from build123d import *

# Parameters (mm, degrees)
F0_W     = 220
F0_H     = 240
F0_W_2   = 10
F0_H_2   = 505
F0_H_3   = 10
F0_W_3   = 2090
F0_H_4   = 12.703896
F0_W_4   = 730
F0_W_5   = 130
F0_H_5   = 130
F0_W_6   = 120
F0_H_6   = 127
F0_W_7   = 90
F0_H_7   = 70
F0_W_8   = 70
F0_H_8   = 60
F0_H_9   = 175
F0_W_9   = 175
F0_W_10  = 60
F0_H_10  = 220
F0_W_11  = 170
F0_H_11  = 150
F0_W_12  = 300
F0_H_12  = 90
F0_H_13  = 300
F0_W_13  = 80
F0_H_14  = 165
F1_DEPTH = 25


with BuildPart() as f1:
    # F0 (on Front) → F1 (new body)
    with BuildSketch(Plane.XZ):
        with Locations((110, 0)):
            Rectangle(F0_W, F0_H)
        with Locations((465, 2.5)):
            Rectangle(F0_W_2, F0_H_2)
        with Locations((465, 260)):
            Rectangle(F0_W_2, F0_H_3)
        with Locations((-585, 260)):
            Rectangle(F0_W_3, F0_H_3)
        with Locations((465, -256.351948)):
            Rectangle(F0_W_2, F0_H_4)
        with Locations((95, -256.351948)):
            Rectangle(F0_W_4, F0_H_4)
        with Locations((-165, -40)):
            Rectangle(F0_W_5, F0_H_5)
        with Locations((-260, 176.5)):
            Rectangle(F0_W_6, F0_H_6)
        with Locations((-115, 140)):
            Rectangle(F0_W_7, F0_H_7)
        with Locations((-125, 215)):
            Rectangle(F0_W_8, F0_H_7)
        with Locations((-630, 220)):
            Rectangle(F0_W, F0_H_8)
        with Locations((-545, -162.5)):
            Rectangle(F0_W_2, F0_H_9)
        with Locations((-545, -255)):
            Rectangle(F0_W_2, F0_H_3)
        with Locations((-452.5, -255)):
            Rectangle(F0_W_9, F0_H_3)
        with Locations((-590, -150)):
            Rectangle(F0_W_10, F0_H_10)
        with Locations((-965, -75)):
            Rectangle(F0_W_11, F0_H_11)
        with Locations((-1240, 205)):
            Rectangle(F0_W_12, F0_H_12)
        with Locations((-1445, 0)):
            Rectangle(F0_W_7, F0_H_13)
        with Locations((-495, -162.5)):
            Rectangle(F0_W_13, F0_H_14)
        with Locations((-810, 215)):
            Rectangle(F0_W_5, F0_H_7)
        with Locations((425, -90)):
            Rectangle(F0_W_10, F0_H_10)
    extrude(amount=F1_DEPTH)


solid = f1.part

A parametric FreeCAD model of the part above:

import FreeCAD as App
import Part
import Sketcher

V = App.Vector
Q = App.Units.Quantity

doc = App.newDocument("Part")
params = doc.addObject("Spreadsheet::Sheet", "Params")
for row, (alias, value) in enumerate([
    ("sketch1_width", "220 mm"),
    ("sketch1_width2", "2100 mm"),
    ("sketch1_width3", "2090 mm"),
    ("sketch1_width4", "730 mm"),
    ("sketch1_width5", "130 mm"),
    ("pad1_length", "25 mm"),
], start=1):
    params.set(f"A{row}", alias)
    params.set(f"B{row}", "=" + value)
    params.setAlias(f"B{row}", alias)

body = doc.addObject("PartDesign::Body", "Body")
body.AllowCompound = True

# Sketch on XZ plane
sketch1 = body.newObject("Sketcher::SketchObject", "Sketch")
sketch1.AttachmentSupport = (doc.getObject("XZ_Plane"), [""])
sketch1.MapMode = "FlatFace"
sketch1.addGeometry([
    Part.LineSegment(V(0, 120, 0), V(0, -120, 0)),  # 0
    Part.LineSegment(V(0, -120, 0), V(220, -120, 0)),  # 1
    Part.LineSegment(V(220, -120, 0), V(220, 120, 0)),  # 2
    Part.LineSegment(V(220, 120, 0), V(0, 120, 0)),  # 3
    Part.LineSegment(V(470, 265, 0), V(-1630, 265, 0)),  # 4
    Part.LineSegment(V(-1630, 265, 0), V(-1630, 255, 0)),  # 5
    Part.LineSegment(V(-1630, 255, 0), V(460, 255, 0)),  # 6
    Part.LineSegment(V(460, 255, 0), V(460, -250, 0)),  # 7
    Part.LineSegment(V(460, -250, 0), V(-270, -250, 0)),  # 8
    Part.LineSegment(V(-270, -250, 0), V(-270, -263, 0)),  # 9
    Part.LineSegment(V(-270, -263, 0), V(470, -263, 0)),  # 10
    Part.LineSegment(V(470, -263, 0), V(470, 265, 0)),  # 11
    Part.LineSegment(V(-230, 25, 0), V(-230, -105, 0)),  # 12
    Part.LineSegment(V(-230, -105, 0), V(-100, -105, 0)),  # 13
    Part.LineSegment(V(-100, -105, 0), V(-100, 25, 0)),  # 14
    Part.LineSegment(V(-100, 25, 0), V(-230, 25, 0)),  # 15
    Part.LineSegment(V(-320, 240, 0), V(-320, 113, 0)),  # 16
    Part.LineSegment(V(-320, 113, 0), V(-200, 113, 0)),  # 17
    Part.LineSegment(V(-200, 113, 0), V(-200, 240, 0)),  # 18
    Part.LineSegment(V(-200, 240, 0), V(-320, 240, 0)),  # 19
    Part.LineSegment(V(-160, 175, 0), V(-160, 105, 0)),  # 20
    Part.LineSegment(V(-160, 105, 0), V(-70, 105, 0)),  # 21
    Part.LineSegment(V(-70, 105, 0), V(-70, 175, 0)),  # 22
    Part.LineSegment(V(-70, 175, 0), V(-160, 175, 0)),  # 23
    Part.LineSegment(V(-160, 250, 0), V(-160, 180, 0)),  # 24
    Part.LineSegment(V(-160, 180, 0), V(-90, 180, 0)),  # 25
    Part.LineSegment(V(-90, 180, 0), V(-90, 250, 0)),  # 26
    Part.LineSegment(V(-90, 250, 0), V(-160, 250, 0)),  # 27
    Part.LineSegment(V(-740, 250, 0), V(-740, 190, 0)),  # 28
    Part.LineSegment(V(-740, 190, 0), V(-520, 190, 0)),  # 29
    Part.LineSegment(V(-520, 190, 0), V(-520, 250, 0)),  # 30
    Part.LineSegment(V(-520, 250, 0), V(-740, 250, 0)),  # 31
    Part.LineSegment(V(-550, -75, 0), V(-550, -260, 0)),  # 32
    Part.LineSegment(V(-550, -260, 0), V(-365, -260, 0)),  # 33
    Part.LineSegment(V(-365, -260, 0), V(-365, -250, 0)),  # 34
    Part.LineSegment(V(-365, -250, 0), V(-540, -250, 0)),  # 35
    Part.LineSegment(V(-540, -250, 0), V(-540, -75, 0)),  # 36
    Part.LineSegment(V(-540, -75, 0), V(-550, -75, 0)),  # 37
    Part.LineSegment(V(-620, -40, 0), V(-620, -260, 0)),  # 38
    Part.LineSegment(V(-620, -260, 0), V(-560, -260, 0)),  # 39
    Part.LineSegment(V(-560, -260, 0), V(-560, -40, 0)),  # 40
    Part.LineSegment(V(-560, -40, 0), V(-620, -40, 0)),  # 41
    Part.LineSegment(V(-1050, 0, 0), V(-1050, -150, 0)),  # 42
    Part.LineSegment(V(-1050, -150, 0), V(-880, -150, 0)),  # 43
    Part.LineSegment(V(-880, -150, 0), V(-880, 0, 0)),  # 44
    Part.LineSegment(V(-880, 0, 0), V(-1050, 0, 0)),  # 45
    Part.LineSegment(V(-1390, 250, 0), V(-1390, 160, 0)),  # 46
    Part.LineSegment(V(-1390, 160, 0), V(-1090, 160, 0)),  # 47
    Part.LineSegment(V(-1090, 160, 0), V(-1090, 250, 0)),  # 48
    Part.LineSegment(V(-1090, 250, 0), V(-1390, 250, 0)),  # 49
    Part.LineSegment(V(-1490, 150, 0), V(-1490, -150, 0)),  # 50
    Part.LineSegment(V(-1490, -150, 0), V(-1400, -150, 0)),  # 51
    Part.LineSegment(V(-1400, -150, 0), V(-1400, 150, 0)),  # 52
    Part.LineSegment(V(-1400, 150, 0), V(-1490, 150, 0)),  # 53
    Part.LineSegment(V(-535, -80, 0), V(-535, -245, 0)),  # 54
    Part.LineSegment(V(-535, -245, 0), V(-455, -245, 0)),  # 55
    Part.LineSegment(V(-455, -245, 0), V(-455, -80, 0)),  # 56
    Part.LineSegment(V(-455, -80, 0), V(-535, -80, 0)),  # 57
    Part.LineSegment(V(-875, 250, 0), V(-875, 180, 0)),  # 58
    Part.LineSegment(V(-875, 180, 0), V(-745, 180, 0)),  # 59
    Part.LineSegment(V(-745, 180, 0), V(-745, 250, 0)),  # 60
    Part.LineSegment(V(-745, 250, 0), V(-875, 250, 0)),  # 61
    Part.LineSegment(V(395, 20, 0), V(395, -200, 0)),  # 62
    Part.LineSegment(V(395, -200, 0), V(455, -200, 0)),  # 63
    Part.LineSegment(V(455, -200, 0), V(455, 20, 0)),  # 64
    Part.LineSegment(V(455, 20, 0), V(395, 20, 0)),  # 65
], False)
sketch1.addConstraint([
    Sketcher.Constraint("Coincident", 0, 2, 1, 1),
    Sketcher.Constraint("Coincident", 1, 2, 2, 1),
    Sketcher.Constraint("Coincident", 2, 2, 3, 1),
    Sketcher.Constraint("Coincident", 3, 2, 0, 1),
    Sketcher.Constraint("Coincident", 4, 2, 5, 1),
    Sketcher.Constraint("Coincident", 5, 2, 6, 1),
    Sketcher.Constraint("Coincident", 6, 2, 7, 1),
    Sketcher.Constraint("Coincident", 7, 2, 8, 1),
    Sketcher.Constraint("Coincident", 8, 2, 9, 1),
    Sketcher.Constraint("Coincident", 9, 2, 10, 1),
    Sketcher.Constraint("Coincident", 10, 2, 11, 1),
    Sketcher.Constraint("Coincident", 11, 2, 4, 1),
    Sketcher.Constraint("Coincident", 12, 2, 13, 1),
    Sketcher.Constraint("Coincident", 13, 2, 14, 1),
    Sketcher.Constraint("Coincident", 14, 2, 15, 1),
    Sketcher.Constraint("Coincident", 15, 2, 12, 1),
    Sketcher.Constraint("Coincident", 16, 2, 17, 1),
    Sketcher.Constraint("Coincident", 17, 2, 18, 1),
    Sketcher.Constraint("Coincident", 18, 2, 19, 1),
    Sketcher.Constraint("Coincident", 19, 2, 16, 1),
    Sketcher.Constraint("Coincident", 20, 2, 21, 1),
    Sketcher.Constraint("Coincident", 21, 2, 22, 1),
    Sketcher.Constraint("Coincident", 22, 2, 23, 1),
    Sketcher.Constraint("Coincident", 23, 2, 20, 1),
    Sketcher.Constraint("Coincident", 24, 2, 25, 1),
    Sketcher.Constraint("Coincident", 25, 2, 26, 1),
    Sketcher.Constraint("Coincident", 26, 2, 27, 1),
    Sketcher.Constraint("Coincident", 27, 2, 24, 1),
    Sketcher.Constraint("Coincident", 28, 2, 29, 1),
    Sketcher.Constraint("Coincident", 29, 2, 30, 1),
    Sketcher.Constraint("Coincident", 30, 2, 31, 1),
    Sketcher.Constraint("Coincident", 31, 2, 28, 1),
    Sketcher.Constraint("Coincident", 32, 2, 33, 1),
    Sketcher.Constraint("Coincident", 33, 2, 34, 1),
    Sketcher.Constraint("Coincident", 34, 2, 35, 1),
    Sketcher.Constraint("Coincident", 35, 2, 36, 1),
    Sketcher.Constraint("Coincident", 36, 2, 37, 1),
    Sketcher.Constraint("Coincident", 37, 2, 32, 1),
    Sketcher.Constraint("Coincident", 38, 2, 39, 1),
    Sketcher.Constraint("Coincident", 39, 2, 40, 1),
    Sketcher.Constraint("Coincident", 40, 2, 41, 1),
    Sketcher.Constraint("Coincident", 41, 2, 38, 1),
    Sketcher.Constraint("Coincident", 42, 2, 43, 1),
    Sketcher.Constraint("Coincident", 43, 2, 44, 1),
    Sketcher.Constraint("Coincident", 44, 2, 45, 1),
    Sketcher.Constraint("Coincident", 45, 2, 42, 1),
    Sketcher.Constraint("Coincident", 46, 2, 47, 1),
    Sketcher.Constraint("Coincident", 47, 2, 48, 1),
    Sketcher.Constraint("Coincident", 48, 2, 49, 1),
    Sketcher.Constraint("Coincident", 49, 2, 46, 1),
    Sketcher.Constraint("Coincident", 50, 2, 51, 1),
    Sketcher.Constraint("Coincident", 51, 2, 52, 1),
    Sketcher.Constraint("Coincident", 52, 2, 53, 1),
    Sketcher.Constraint("Coincident", 53, 2, 50, 1),
    Sketcher.Constraint("Coincident", 54, 2, 55, 1),
    Sketcher.Constraint("Coincident", 55, 2, 56, 1),
    Sketcher.Constraint("Coincident", 56, 2, 57, 1),
    Sketcher.Constraint("Coincident", 57, 2, 54, 1),
    Sketcher.Constraint("Coincident", 58, 2, 59, 1),
    Sketcher.Constraint("Coincident", 59, 2, 60, 1),
    Sketcher.Constraint("Coincident", 60, 2, 61, 1),
    Sketcher.Constraint("Coincident", 61, 2, 58, 1),
    Sketcher.Constraint("Coincident", 62, 2, 63, 1),
    Sketcher.Constraint("Coincident", 63, 2, 64, 1),
    Sketcher.Constraint("Coincident", 64, 2, 65, 1),
    Sketcher.Constraint("Coincident", 65, 2, 62, 1),
    Sketcher.Constraint("Vertical", 0),
    Sketcher.Constraint("Horizontal", 1),
    Sketcher.Constraint("Vertical", 2),
    Sketcher.Constraint("Horizontal", 3),
    Sketcher.Constraint("Horizontal", 4),
    Sketcher.Constraint("Vertical", 5),
    Sketcher.Constraint("Horizontal", 6),
    Sketcher.Constraint("Vertical", 7),
    Sketcher.Constraint("Horizontal", 8),
    Sketcher.Constraint("Vertical", 9),
    Sketcher.Constraint("Horizontal", 10),
    Sketcher.Constraint("Vertical", 11),
    Sketcher.Constraint("Vertical", 12),
    Sketcher.Constraint("Horizontal", 13),
    Sketcher.Constraint("Vertical", 14),
    Sketcher.Constraint("Horizontal", 15),
    Sketcher.Constraint("Vertical", 16),
    Sketcher.Constraint("Horizontal", 17),
    Sketcher.Constraint("Vertical", 18),
    Sketcher.Constraint("Horizontal", 19),
    Sketcher.Constraint("Vertical", 20),
    Sketcher.Constraint("Horizontal", 21),
    Sketcher.Constraint("Vertical", 22),
    Sketcher.Constraint("Horizontal", 23),
    Sketcher.Constraint("Vertical", 24),
    Sketcher.Constraint("Horizontal", 25),
    Sketcher.Constraint("Vertical", 26),
    Sketcher.Constraint("Horizontal", 27),
    Sketcher.Constraint("Vertical", 28),
    Sketcher.Constraint("Horizontal", 29),
    Sketcher.Constraint("Vertical", 30),
    Sketcher.Constraint("Horizontal", 31),
    Sketcher.Constraint("Vertical", 32),
    Sketcher.Constraint("Horizontal", 33),
    Sketcher.Constraint("Vertical", 34),
    Sketcher.Constraint("Horizontal", 35),
    Sketcher.Constraint("Vertical", 36),
    Sketcher.Constraint("Horizontal", 37),
    Sketcher.Constraint("Vertical", 38),
    Sketcher.Constraint("Horizontal", 39),
    Sketcher.Constraint("Vertical", 40),
    Sketcher.Constraint("Horizontal", 41),
    Sketcher.Constraint("Vertical", 42),
    Sketcher.Constraint("Horizontal", 43),
    Sketcher.Constraint("Vertical", 44),
    Sketcher.Constraint("Horizontal", 45),
    Sketcher.Constraint("Vertical", 46),
    Sketcher.Constraint("Horizontal", 47),
    Sketcher.Constraint("Vertical", 48),
    Sketcher.Constraint("Horizontal", 49),
    Sketcher.Constraint("Vertical", 50),
    Sketcher.Constraint("Horizontal", 51),
    Sketcher.Constraint("Vertical", 52),
    Sketcher.Constraint("Horizontal", 53),
    Sketcher.Constraint("Vertical", 54),
    Sketcher.Constraint("Horizontal", 55),
    Sketcher.Constraint("Vertical", 56),
    Sketcher.Constraint("Horizontal", 57),
    Sketcher.Constraint("Vertical", 58),
    Sketcher.Constraint("Horizontal", 59),
    Sketcher.Constraint("Vertical", 60),
    Sketcher.Constraint("Horizontal", 61),
    Sketcher.Constraint("Vertical", 62),
    Sketcher.Constraint("Horizontal", 63),
    Sketcher.Constraint("Vertical", 64),
    Sketcher.Constraint("Horizontal", 65),
    Sketcher.Constraint("Symmetric", 0, 2, 3, 2, -1, 1),
    Sketcher.Constraint("PointOnObject", 44, 2, -1),
    Sketcher.Constraint("Horizontal", 27, 2, 30, 2),
    Sketcher.Constraint("Horizontal", 8, 2, 34, 2),
    Sketcher.Constraint("Horizontal", 33, 2, 38, 2),
    Sketcher.Constraint("Horizontal", 31, 2, 48, 2),
    Sketcher.Constraint("Horizontal", 43, 2, 50, 2),
    Sketcher.Constraint("Horizontal", 25, 2, 58, 2),
    Sketcher.Constraint("Horizontal", 49, 2, 60, 2),
    Sketcher.Constraint("Vertical", 23, 2, 24, 2),
    Sketcher.Constraint("Equal", 3, 29),
    Sketcher.Constraint("Equal", 23, 51),
    Sketcher.Constraint("Equal", 15, 59),
    Sketcher.Constraint("Equal", 41, 63),
    Sketcher.Constraint("Equal", 37, 5),
    Sketcher.Constraint("Equal", 61, 12),
    Sketcher.Constraint("Equal", 27, 20),
    Sketcher.Constraint("Equal", 22, 24),
    Sketcher.Constraint("Equal", 65, 28),
    Sketcher.Constraint("Equal", 33, 32),
    Sketcher.Constraint("Equal", 5, 34),
    Sketcher.Constraint("Equal", 31, 38),
    Sketcher.Constraint("Equal", 53, 46),
    Sketcher.Constraint("Equal", 49, 50),
    Sketcher.Constraint("Equal", 40, 62),
    Sketcher.Constraint("DistanceX", 1, 1, 1, 2, Q("220 mm")),
    Sketcher.Constraint("DistanceX", 4, 2, 4, 1, Q("2100 mm")),
    Sketcher.Constraint("DistanceX", 6, 1, 6, 2, Q("2090 mm")),
    Sketcher.Constraint("DistanceX", 8, 2, 8, 1, Q("730 mm")),
    Sketcher.Constraint("DistanceX", 13, 1, 13, 2, Q("130 mm")),
    Sketcher.Constraint("DistanceX", 17, 1, 17, 2, Q("120 mm")),
    Sketcher.Constraint("DistanceX", 21, 1, 21, 2, Q("90 mm")),
    Sketcher.Constraint("DistanceX", 25, 1, 25, 2, Q("70 mm")),
    Sketcher.Constraint("DistanceX", 33, 1, 33, 2, Q("185 mm")),
    Sketcher.Constraint("DistanceX", 35, 2, 35, 1, Q("175 mm")),
    Sketcher.Constraint("DistanceX", 39, 1, 39, 2, Q("60 mm")),
    Sketcher.Constraint("DistanceX", 43, 1, 43, 2, Q("170 mm")),
    Sketcher.Constraint("DistanceX", 47, 1, 47, 2, Q("300 mm")),
    Sketcher.Constraint("DistanceX", 55, 1, 55, 2, Q("80 mm")),
    Sketcher.Constraint("DistanceY", 0, 2, 0, 1, Q("240 mm")),
    Sketcher.Constraint("DistanceY", 7, 2, 7, 1, Q("505 mm")),
    Sketcher.Constraint("DistanceY", 16, 2, 16, 1, Q("127 mm")),
    Sketcher.Constraint("DistanceY", 42, 2, 42, 1, Q("150 mm")),
    Sketcher.Constraint("DistanceY", 54, 2, 54, 1, Q("165 mm")),
    Sketcher.Constraint("DistanceX", 4, 2, -1, 1, Q("1630 mm")),
    Sketcher.Constraint("DistanceY", -1, 1, 4, 2, Q("265 mm")),
    Sketcher.Constraint("DistanceX", 12, 2, -1, 1, Q("230 mm")),
    Sketcher.Constraint("DistanceY", 12, 2, -1, 1, Q("105 mm")),
    Sketcher.Constraint("DistanceX", 16, 2, -1, 1, Q("320 mm")),
    Sketcher.Constraint("DistanceY", -1, 1, 16, 2, Q("113 mm")),
    Sketcher.Constraint("DistanceX", 20, 2, -1, 1, Q("160 mm")),
    Sketcher.Constraint("DistanceY", -1, 1, 20, 2, Q("105 mm")),
    Sketcher.Constraint("DistanceY", -1, 1, 24, 2, Q("180 mm")),
    Sketcher.Constraint("DistanceX", 28, 2, -1, 1, Q("740 mm")),
    Sketcher.Constraint("DistanceX", 32, 2, -1, 1, Q("550 mm")),
    Sketcher.Constraint("DistanceX", 38, 2, -1, 1, Q("620 mm")),
    Sketcher.Constraint("DistanceX", 42, 2, -1, 1, Q("1050 mm")),
    Sketcher.Constraint("DistanceX", 46, 2, -1, 1, Q("1390 mm")),
    Sketcher.Constraint("DistanceX", 50, 2, -1, 1, Q("1490 mm")),
    Sketcher.Constraint("DistanceX", 54, 2, -1, 1, Q("535 mm")),
    Sketcher.Constraint("DistanceY", 54, 2, -1, 1, Q("245 mm")),
    Sketcher.Constraint("DistanceX", 58, 2, -1, 1, Q("875 mm")),
    Sketcher.Constraint("DistanceX", -1, 1, 62, 2, Q("395 mm")),
    Sketcher.Constraint("DistanceY", 62, 2, -1, 1, Q("200 mm")),
    Sketcher.Constraint("DistanceY", 9, 2, 9, 1, Q("12.703896 mm")),
])
sketch1.setExpression("Constraints[157]", "Params.sketch1_width")
sketch1.setExpression("Constraints[158]", "Params.sketch1_width2")
sketch1.setExpression("Constraints[159]", "Params.sketch1_width3")
sketch1.setExpression("Constraints[160]", "Params.sketch1_width4")
sketch1.setExpression("Constraints[161]", "Params.sketch1_width5")
pad1 = body.newObject("PartDesign::Pad", "Pad")
pad1.Profile = sketch1
pad1.setExpression("Length", "Params.pad1_length")

doc.recompute()
